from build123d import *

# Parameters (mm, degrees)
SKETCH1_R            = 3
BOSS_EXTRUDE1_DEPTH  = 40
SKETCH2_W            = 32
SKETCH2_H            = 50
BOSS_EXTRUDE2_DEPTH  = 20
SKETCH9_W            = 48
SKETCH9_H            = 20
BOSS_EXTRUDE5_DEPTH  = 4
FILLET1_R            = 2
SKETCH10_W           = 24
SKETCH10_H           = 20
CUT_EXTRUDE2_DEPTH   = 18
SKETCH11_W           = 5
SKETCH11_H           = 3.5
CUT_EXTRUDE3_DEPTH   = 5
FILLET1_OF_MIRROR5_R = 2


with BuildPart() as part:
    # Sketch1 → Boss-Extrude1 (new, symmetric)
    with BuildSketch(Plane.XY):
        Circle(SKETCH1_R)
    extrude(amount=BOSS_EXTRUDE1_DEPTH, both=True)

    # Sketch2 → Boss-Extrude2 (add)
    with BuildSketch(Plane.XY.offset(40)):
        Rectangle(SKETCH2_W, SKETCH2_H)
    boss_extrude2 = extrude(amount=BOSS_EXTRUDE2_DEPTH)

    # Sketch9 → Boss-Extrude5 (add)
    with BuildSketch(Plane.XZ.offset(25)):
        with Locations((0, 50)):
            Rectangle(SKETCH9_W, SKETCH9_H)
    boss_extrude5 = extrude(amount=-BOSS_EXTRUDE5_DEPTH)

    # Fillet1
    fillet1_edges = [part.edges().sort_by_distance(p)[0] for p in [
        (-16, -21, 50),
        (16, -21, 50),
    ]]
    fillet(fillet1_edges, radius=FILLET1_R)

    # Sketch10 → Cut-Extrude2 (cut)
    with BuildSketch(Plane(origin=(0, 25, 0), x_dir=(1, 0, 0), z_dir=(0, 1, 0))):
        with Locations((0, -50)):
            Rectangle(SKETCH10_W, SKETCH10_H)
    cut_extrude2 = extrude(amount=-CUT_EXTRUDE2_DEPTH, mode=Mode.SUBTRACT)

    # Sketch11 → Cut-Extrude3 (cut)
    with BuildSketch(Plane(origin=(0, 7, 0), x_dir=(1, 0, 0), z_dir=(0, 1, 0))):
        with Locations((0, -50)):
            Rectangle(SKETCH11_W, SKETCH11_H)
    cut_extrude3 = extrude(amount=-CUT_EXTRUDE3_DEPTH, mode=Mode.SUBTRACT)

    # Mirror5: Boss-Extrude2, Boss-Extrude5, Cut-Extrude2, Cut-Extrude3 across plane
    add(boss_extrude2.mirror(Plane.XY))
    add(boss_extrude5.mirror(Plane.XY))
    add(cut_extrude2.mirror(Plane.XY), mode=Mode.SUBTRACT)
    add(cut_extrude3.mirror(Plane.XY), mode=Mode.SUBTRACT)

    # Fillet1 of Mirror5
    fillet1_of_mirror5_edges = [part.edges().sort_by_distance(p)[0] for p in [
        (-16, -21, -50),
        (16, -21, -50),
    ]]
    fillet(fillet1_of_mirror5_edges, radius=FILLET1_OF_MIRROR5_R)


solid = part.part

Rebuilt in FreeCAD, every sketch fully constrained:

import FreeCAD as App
import Part
import Sketcher


def edges_at(feature, points):
    """Names of the edges that pass closest to the given points."""
    edges = feature.Shape.Edges
    near = lambda p: min(range(len(edges)), key=lambda i: edges[i].distToShape(Part.Vertex(*p))[0])
    return sorted({f"Edge{near(p) + 1}" for p in points})

doc = App.newDocument("Part")
body = doc.addObject("PartDesign::Body", "Body")

# Sketch on XY plane
sketch1 = body.newObject("Sketcher::SketchObject", "Sketch")
sketch1.AttachmentSupport = (doc.getObject("XY_Plane"), [""])
sketch1.MapMode = "FlatFace"
sketch1.addGeometry(Part.Circle(App.Vector(0, 0, 0), App.Vector(0, 0, 1), 3), False)
sketch1.addConstraint([
    Sketcher.Constraint("Coincident", 0, 3, -1, 1),
    Sketcher.Constraint("Diameter", 0, 6.0),
])
pad1 = body.newObject("PartDesign::Pad", "Pad")
pad1.Profile = sketch1
pad1.Length = 80
pad1.Midplane = True

# Sketch on XY plane
sketch2 = body.newObject("Sketcher::SketchObject", "Sketch001")
sketch2.AttachmentSupport = (doc.getObject("XY_Plane"), [""])
sketch2.MapMode = "FlatFace"
sketch2.AttachmentOffset = App.Placement(App.Vector(0, 0, 40), App.Rotation())
sketch2.addGeometry([
    Part.LineSegment(App.Vector(-16, 25, 0), App.Vector(-16, -25, 0)),
    Part.LineSegment(App.Vector(-16, -25, 0), App.Vector(16, -25, 0)),
    Part.LineSegment(App.Vector(16, -25, 0), App.Vector(16, 25, 0)),
    Part.LineSegment(App.Vector(16, 25, 0), App.Vector(-16, 25, 0)),
], False)
sketch2.addConstraint([
    Sketcher.Constraint("Coincident", 0, 2, 1, 1),
    Sketcher.Constraint("Coincident", 1, 2, 2, 1),
    Sketcher.Constraint("Coincident", 2, 2, 3, 1),
    Sketcher.Constraint("Coincident", 3, 2, 0, 1),
    Sketcher.Constraint("Vertical", 0),
    Sketcher.Constraint("Horizontal", 1),
    Sketcher.Constraint("Vertical", 2),
    Sketcher.Constraint("Horizontal", 3),
    Sketcher.Constraint("Symmetric", 0, 2, 2, 2, -1, 1),
    Sketcher.Constraint("DistanceX", 1, 1, 1, 2, 32.0),
    Sketcher.Constraint("DistanceY", 0, 2, 0, 1, 50.0),
])
pad2 = body.newObject("PartDesign::Pad", "Pad001")
pad2.Profile = sketch2
pad2.Length = 20

# Sketch on XZ plane
sketch3 = body.newObject("Sketcher::SketchObject", "Sketch002")
sketch3.AttachmentSupport = (doc.getObject("XZ_Plane"), [""])
sketch3.MapMode = "FlatFace"
sketch3.AttachmentOffset = App.Placement(App.Vector(0, 0, 25), App.Rotation())
sketch3.addGeometry([
    Part.LineSegment(App.Vector(-24, 60, 0), App.Vector(-24, 40, 0)),
    Part.LineSegment(App.Vector(-24, 40, 0), App.Vector(24, 40, 0)),
    Part.LineSegment(App.Vector(24, 40, 0), App.Vector(24, 60, 0)),
    Part.LineSegment(App.Vector(24, 60, 0), App.Vector(-24, 60, 0)),
], False)
sketch3.addConstraint([
    Sketcher.Constraint("Coincident", 0, 2, 1, 1),
    Sketcher.Constraint("Coincident", 1, 2, 2, 1),
    Sketcher.Constraint("Coincident", 2, 2, 3, 1),
    Sketcher.Constraint("Coincident", 3, 2, 0, 1),
    Sketcher.Constraint("Vertical", 0),
    Sketcher.Constraint("Horizontal", 1),
    Sketcher.Constraint("Vertical", 2),
    Sketcher.Constraint("Horizontal", 3),
    Sketcher.Constraint("DistanceX", 1, 1, 1, 2, 48.0),
    Sketcher.Constraint("DistanceY", 0, 2, 0, 1, 20.0),
    Sketcher.Constraint("DistanceX", 0, 2, -1, 1, 24.0),
    Sketcher.Constraint("DistanceY", -1, 1, 0, 2, 40.0),
])
pad3 = body.newObject("PartDesign::Pad", "Pad002")
pad3.Profile = sketch3
pad3.Length = 4
pad3.Reversed = True
doc.recompute()

fillet = body.newObject("PartDesign::Fillet", "Fillet")
fillet.Base = (pad3, edges_at(pad3, [(-16, -21, 50), (16, -21, 50)]))
fillet.Radius = 2

# Sketch on XZ plane
sketch4 = body.newObject("Sketcher::SketchObject", "Sketch003")
sketch4.AttachmentSupport = (doc.getObject("XZ_Plane"), [""])
sketch4.MapMode = "FlatFace"
sketch4.AttachmentOffset = App.Placement(App.Vector(0, 0, -25), App.Rotation())
sketch4.addGeometry([
    Part.LineSegment(App.Vector(-12, 40, 0), App.Vector(-12, 60, 0)),
    Part.LineSegment(App.Vector(-12, 60, 0), App.Vector(12, 60, 0)),
    Part.LineSegment(App.Vector(12, 60, 0), App.Vector(12, 40, 0)),
    Part.LineSegment(App.Vector(12, 40, 0), App.Vector(-12, 40, 0)),
], False)
sketch4.addConstraint([
    Sketcher.Constraint("Coincident", 0, 2, 1, 1),
    Sketcher.Constraint("Coincident", 1, 2, 2, 1),
    Sketcher.Constraint("Coincident", 2, 2, 3, 1),
    Sketcher.Constraint("Coincident", 3, 2, 0, 1),
    Sketcher.Constraint("Vertical", 0),
    Sketcher.Constraint("Horizontal", 1),
    Sketcher.Constraint("Vertical", 2),
    Sketcher.Constraint("Horizontal", 3),
    Sketcher.Constraint("DistanceX", 1, 1, 1, 2, 24.0),
    Sketcher.Constraint("DistanceY", 0, 1, 0, 2, 20.0),
    Sketcher.Constraint("DistanceX", 0, 2, -1, 1, 12.0),
    Sketcher.Constraint("DistanceY", -1, 1, 0, 2, 60.0),
])
pocket1 = body.newObject("PartDesign::Pocket", "Pocket")
pocket1.Profile = sketch4
pocket1.Length = 18
pocket1.Reversed = True

# Sketch on XZ plane
sketch5 = body.newObject("Sketcher::SketchObject", "Sketch004")
sketch5.AttachmentSupport = (doc.getObject("XZ_Plane"), [""])
sketch5.MapMode = "FlatFace"
sketch5.AttachmentOffset = App.Placement(App.Vector(0, 0, -7), App.Rotation())
sketch5.addGeometry([
    Part.LineSegment(App.Vector(-2.5, 48.2, 0), App.Vector(-2.5, 51.8, 0)),
    Part.LineSegment(App.Vector(-2.5, 51.8, 0), App.Vector(2.5, 51.8, 0)),
    Part.LineSegment(App.Vector(2.5, 51.8, 0), App.Vector(2.5, 48.2, 0)),
    Part.LineSegment(App.Vector(2.5, 48.2, 0), App.Vector(-2.5, 48.2, 0)),
], False)
sketch5.addConstraint([
    Sketcher.Constraint("Coincident", 0, 2, 1, 1),
    Sketcher.Constraint("Coincident", 1, 2, 2, 1),
    Sketcher.Constraint("Coincident", 2, 2, 3, 1),
    Sketcher.Constraint("Coincident", 3, 2, 0, 1),
    Sketcher.Constraint("Vertical", 0),
    Sketcher.Constraint("Horizontal", 1),
    Sketcher.Constraint("Vertical", 2),
    Sketcher.Constraint("Horizontal", 3),
    Sketcher.Constraint("DistanceX", 1, 1, 1, 2, 5.0),
    Sketcher.Constraint("DistanceY", 0, 1, 0, 2, 3.5),
    Sketcher.Constraint("DistanceX", 0, 2, -1, 1, 2.5),
    Sketcher.Constraint("DistanceY", -1, 1, 0, 2, 51.75),
])
pocket2 = body.newObject("PartDesign::Pocket", "Pocket001")
pocket2.Profile = sketch5
pocket2.Length = 5
pocket2.Reversed = True
doc.recompute()

mirrored = body.newObject("PartDesign::Mirrored", "Mirrored")
mirrored.Originals = [pad2, pad3, pocket1, pocket2]
mirrored.MirrorPlane = (doc.getObject("XY_Plane"), [""])
body.Tip = mirrored
doc.recompute()

fillet2 = body.newObject("PartDesign::Fillet", "Fillet001")
fillet2.Base = (mirrored, edges_at(mirrored, [(-16, -21, -50), (16, -21, -50)]))
fillet2.Radius = 2

doc.recompute()
